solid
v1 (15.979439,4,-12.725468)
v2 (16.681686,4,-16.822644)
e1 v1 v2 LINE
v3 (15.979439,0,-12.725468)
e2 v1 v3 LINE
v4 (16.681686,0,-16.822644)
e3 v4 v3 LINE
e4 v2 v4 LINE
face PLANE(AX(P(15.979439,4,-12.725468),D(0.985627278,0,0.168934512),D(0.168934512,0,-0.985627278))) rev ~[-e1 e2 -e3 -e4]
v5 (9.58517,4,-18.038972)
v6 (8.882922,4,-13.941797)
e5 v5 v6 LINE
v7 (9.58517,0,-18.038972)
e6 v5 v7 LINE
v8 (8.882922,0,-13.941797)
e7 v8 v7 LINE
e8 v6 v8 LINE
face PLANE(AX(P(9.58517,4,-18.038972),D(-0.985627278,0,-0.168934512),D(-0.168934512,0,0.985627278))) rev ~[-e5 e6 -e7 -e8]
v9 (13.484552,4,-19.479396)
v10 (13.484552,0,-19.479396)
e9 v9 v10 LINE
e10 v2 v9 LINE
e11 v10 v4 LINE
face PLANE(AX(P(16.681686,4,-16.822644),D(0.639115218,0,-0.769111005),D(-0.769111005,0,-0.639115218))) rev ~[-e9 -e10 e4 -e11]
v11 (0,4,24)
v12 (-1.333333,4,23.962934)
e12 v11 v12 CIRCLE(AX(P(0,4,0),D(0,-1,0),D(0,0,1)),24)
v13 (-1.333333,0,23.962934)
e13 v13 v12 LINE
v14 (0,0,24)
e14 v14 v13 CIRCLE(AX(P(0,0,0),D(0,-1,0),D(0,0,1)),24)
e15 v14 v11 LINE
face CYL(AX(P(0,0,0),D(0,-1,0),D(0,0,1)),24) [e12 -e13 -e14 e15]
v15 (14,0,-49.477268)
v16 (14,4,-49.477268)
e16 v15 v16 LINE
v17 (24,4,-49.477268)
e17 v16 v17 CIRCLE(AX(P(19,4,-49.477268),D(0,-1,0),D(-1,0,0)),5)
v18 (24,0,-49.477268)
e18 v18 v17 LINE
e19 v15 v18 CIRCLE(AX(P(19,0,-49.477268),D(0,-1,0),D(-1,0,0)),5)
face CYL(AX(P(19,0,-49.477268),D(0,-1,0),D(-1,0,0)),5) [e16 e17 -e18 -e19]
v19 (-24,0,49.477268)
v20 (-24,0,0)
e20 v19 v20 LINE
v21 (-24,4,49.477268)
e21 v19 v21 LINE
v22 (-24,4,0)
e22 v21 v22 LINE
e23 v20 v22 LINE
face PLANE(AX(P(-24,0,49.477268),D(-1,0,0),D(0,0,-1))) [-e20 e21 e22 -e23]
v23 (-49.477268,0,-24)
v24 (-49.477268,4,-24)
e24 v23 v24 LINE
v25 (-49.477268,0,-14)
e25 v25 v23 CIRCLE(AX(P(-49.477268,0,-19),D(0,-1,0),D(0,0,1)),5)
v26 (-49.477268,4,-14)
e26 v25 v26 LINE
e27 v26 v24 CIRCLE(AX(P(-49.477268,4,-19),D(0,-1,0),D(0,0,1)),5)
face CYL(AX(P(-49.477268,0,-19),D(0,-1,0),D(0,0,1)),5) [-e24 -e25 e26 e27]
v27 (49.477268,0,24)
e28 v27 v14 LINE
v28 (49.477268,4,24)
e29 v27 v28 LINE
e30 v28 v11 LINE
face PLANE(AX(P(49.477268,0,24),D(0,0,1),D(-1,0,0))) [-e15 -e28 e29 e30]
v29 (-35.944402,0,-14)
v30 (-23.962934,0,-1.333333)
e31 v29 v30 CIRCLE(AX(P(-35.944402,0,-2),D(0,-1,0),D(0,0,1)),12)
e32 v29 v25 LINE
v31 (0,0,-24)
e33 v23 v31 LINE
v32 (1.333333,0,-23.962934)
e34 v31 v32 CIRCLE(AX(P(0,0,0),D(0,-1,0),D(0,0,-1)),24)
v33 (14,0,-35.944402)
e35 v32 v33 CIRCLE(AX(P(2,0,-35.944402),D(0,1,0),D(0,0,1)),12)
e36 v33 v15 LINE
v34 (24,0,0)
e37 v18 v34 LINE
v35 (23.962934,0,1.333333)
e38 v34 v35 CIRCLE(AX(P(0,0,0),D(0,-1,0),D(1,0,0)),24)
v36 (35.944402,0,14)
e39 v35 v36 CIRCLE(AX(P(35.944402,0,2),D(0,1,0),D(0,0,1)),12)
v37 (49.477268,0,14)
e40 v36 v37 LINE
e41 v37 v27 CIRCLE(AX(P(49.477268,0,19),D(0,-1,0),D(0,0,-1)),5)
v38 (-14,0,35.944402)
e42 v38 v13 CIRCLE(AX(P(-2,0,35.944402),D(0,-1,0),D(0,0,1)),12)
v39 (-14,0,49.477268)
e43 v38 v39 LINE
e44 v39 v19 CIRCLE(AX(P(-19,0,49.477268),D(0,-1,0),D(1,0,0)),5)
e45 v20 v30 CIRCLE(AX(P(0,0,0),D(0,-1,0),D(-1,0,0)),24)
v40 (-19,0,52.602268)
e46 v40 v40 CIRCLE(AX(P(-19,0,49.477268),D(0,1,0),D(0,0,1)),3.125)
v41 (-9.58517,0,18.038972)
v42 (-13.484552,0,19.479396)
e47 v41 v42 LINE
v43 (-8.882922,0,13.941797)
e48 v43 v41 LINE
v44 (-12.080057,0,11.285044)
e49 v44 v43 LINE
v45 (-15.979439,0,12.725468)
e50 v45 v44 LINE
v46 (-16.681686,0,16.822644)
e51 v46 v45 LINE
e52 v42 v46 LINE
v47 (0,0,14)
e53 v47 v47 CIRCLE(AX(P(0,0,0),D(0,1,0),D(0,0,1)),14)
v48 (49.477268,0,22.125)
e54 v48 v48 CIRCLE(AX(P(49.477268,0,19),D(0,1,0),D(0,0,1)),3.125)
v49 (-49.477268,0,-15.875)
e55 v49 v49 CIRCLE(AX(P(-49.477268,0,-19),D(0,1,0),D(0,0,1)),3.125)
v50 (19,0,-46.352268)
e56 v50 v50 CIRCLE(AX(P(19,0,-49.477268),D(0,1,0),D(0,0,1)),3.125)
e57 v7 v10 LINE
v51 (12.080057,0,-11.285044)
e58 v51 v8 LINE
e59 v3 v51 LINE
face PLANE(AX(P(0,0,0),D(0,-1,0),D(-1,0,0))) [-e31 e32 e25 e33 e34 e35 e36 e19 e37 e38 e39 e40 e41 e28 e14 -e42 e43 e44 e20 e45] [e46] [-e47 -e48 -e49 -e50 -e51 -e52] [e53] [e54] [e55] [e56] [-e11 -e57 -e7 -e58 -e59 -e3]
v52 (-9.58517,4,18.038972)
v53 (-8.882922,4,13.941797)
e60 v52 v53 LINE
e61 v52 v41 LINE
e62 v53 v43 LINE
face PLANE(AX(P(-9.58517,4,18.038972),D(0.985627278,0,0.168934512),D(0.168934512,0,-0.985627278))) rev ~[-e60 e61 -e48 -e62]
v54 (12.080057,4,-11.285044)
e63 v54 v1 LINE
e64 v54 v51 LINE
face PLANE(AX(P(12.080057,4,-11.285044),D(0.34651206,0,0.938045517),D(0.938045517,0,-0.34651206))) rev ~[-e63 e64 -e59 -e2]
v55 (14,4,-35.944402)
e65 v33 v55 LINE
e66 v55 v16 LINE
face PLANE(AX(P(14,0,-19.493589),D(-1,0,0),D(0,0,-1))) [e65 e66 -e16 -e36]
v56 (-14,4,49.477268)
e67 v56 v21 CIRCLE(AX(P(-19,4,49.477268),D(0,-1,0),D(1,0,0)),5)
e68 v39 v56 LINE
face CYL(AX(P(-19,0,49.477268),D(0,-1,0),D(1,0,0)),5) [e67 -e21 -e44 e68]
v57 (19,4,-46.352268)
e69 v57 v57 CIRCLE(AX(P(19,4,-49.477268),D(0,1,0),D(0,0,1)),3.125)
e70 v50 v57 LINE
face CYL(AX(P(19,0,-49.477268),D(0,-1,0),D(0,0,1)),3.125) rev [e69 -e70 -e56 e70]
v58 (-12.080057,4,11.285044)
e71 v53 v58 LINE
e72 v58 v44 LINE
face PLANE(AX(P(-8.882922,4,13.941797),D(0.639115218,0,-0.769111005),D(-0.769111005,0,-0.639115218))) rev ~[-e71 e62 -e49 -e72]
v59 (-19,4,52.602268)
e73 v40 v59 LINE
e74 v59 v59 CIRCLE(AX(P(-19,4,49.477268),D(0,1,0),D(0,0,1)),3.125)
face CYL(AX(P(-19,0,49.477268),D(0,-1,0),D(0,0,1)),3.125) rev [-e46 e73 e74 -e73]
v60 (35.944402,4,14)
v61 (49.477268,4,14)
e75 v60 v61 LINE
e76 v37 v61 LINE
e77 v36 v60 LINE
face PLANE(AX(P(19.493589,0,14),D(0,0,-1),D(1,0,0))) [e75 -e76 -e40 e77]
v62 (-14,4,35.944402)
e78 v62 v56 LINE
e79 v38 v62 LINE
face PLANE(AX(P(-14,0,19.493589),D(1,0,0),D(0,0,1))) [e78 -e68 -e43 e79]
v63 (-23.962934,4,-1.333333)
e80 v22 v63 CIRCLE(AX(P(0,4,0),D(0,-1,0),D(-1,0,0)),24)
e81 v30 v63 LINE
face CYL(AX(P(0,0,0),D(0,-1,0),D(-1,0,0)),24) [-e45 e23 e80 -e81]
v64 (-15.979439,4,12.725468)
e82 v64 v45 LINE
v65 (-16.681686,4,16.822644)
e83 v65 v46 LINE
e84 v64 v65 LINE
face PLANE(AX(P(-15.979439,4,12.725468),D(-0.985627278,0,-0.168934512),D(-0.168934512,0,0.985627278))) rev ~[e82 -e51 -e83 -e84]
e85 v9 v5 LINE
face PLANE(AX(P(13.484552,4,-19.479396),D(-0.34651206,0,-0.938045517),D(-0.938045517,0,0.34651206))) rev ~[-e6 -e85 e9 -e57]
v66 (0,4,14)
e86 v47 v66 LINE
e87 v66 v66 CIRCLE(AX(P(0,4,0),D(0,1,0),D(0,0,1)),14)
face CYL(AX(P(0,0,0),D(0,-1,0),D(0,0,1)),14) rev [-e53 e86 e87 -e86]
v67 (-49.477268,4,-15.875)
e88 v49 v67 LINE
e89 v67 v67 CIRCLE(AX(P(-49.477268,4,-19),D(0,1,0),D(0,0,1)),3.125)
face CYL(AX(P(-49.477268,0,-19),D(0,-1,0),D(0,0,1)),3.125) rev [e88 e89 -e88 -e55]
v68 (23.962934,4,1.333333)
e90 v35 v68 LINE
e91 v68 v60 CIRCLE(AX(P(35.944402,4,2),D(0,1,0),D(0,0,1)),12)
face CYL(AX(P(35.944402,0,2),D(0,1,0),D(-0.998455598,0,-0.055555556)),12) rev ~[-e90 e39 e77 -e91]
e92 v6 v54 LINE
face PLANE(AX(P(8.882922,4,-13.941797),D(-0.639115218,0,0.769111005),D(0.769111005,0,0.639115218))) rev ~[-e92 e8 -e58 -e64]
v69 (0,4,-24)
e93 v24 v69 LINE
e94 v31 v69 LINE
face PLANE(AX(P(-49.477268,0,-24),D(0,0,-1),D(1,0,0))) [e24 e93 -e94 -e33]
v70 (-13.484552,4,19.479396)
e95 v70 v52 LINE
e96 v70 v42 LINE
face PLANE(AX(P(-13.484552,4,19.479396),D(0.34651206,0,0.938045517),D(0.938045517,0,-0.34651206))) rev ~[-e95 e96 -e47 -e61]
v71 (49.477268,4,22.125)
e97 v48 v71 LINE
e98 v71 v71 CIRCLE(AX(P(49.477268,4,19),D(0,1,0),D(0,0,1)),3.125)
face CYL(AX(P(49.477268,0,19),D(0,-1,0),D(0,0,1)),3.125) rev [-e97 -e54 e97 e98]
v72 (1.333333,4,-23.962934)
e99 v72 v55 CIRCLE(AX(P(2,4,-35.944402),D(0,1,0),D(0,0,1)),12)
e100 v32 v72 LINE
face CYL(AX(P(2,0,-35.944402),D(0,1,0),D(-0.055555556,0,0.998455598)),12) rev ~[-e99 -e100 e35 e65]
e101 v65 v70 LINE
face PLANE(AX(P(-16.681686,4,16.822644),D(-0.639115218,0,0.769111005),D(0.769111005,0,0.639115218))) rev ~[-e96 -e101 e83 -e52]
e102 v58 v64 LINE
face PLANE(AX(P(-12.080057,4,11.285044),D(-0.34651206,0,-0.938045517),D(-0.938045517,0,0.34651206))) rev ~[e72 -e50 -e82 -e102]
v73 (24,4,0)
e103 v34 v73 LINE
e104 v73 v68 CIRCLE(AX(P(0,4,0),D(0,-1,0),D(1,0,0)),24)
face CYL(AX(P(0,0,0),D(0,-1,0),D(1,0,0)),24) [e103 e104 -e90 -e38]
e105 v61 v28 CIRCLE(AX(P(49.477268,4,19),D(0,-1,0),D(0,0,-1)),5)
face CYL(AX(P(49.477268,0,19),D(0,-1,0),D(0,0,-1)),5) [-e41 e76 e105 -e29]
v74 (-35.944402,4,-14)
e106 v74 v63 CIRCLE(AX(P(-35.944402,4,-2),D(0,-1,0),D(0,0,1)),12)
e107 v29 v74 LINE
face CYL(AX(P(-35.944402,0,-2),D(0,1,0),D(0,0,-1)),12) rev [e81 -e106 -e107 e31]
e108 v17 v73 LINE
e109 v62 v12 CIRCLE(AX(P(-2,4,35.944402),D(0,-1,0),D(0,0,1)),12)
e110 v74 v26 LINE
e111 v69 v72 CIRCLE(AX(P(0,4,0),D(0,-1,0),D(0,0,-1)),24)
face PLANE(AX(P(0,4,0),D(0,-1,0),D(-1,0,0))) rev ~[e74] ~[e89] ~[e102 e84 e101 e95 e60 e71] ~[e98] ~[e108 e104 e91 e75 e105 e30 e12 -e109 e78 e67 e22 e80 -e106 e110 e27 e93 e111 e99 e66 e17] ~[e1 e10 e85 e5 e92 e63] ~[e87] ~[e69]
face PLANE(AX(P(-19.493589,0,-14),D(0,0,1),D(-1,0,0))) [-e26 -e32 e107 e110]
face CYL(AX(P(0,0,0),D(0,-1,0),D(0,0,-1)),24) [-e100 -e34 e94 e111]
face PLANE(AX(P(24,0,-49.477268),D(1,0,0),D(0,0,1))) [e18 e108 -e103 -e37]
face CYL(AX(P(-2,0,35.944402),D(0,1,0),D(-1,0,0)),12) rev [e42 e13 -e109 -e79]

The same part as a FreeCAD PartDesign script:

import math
import FreeCAD as App
import Part
import Sketcher


def edges_at(feature, points):
    """Names of the edges that pass closest to the given points."""
    edges = feature.Shape.Edges
    near = lambda p: min(range(len(edges)), key=lambda i: edges[i].distToShape(Part.Vertex(*p))[0])
    return sorted({f"Edge{near(p) + 1}" for p in points})


def add_polygon(sketch, points):
    """Adds a closed chain of lines whose ends are joined by coincident constraints."""
    first, n = sketch.GeometryCount, len(points)
    for a, b in zip(points, points[1:] + points[:1]):
        sketch.addGeometry(Part.LineSegment(App.Vector(*a, 0), App.Vector(*b, 0)), False)
    for i in range(n):
        sketch.addConstraint(Sketcher.Constraint("Coincident", first + i, 2, first + (i + 1) % n, 1))

doc = App.newDocument("Part")
body = doc.addObject("PartDesign::Body", "Body")

# Sketch on XZ plane
sketch1 = body.newObject("Sketcher::SketchObject", "Sketch")
sketch1.AttachmentSupport = (doc.getObject("XZ_Plane"), [""])
sketch1.MapMode = "FlatFace"
sketch1.addGeometry([
    Part.LineSegment(App.Vector(0, -24, 0), App.Vector(-49.477268, -24, 0)),  # 0
    Part.ArcOfCircle(Part.Circle(App.Vector(-49.477268, -19, 0), App.Vector(0, 0, 1), 5), math.radians(90), math.radians(270)),  # 1
    Part.LineSegment(App.Vector(-49.477268, -14, 0), App.Vector(-19.493589, -14, 0)),  # 2
    Part.ArcOfCircle(Part.Circle(App.Vector(0, 0, 0), App.Vector(0, 0, 1), 24), math.radians(180), math.radians(215.685335)),  # 3
    Part.LineSegment(App.Vector(-24, 0, 0), App.Vector(-24, 49.477268, 0)),  # 4
    Part.ArcOfCircle(Part.Circle(App.Vector(-19, 49.477268, 0), App.Vector(0, 0, 1), 5), math.radians(0), math.radians(180)),  # 5
    Part.LineSegment(App.Vector(-14, 49.477268, 0), App.Vector(-14, 19.493589, 0)),  # 6
    Part.ArcOfCircle(Part.Circle(App.Vector(0, 0, 0), App.Vector(0, 0, 1), 24), math.radians(90), math.radians(125.685335)),  # 7
    Part.LineSegment(App.Vector(0, 24, 0), App.Vector(49.477268, 24, 0)),  # 8
    Part.ArcOfCircle(Part.Circle(App.Vector(49.477268, 19, 0), App.Vector(0, 0, 1), 5), math.radians(-90), math.radians(90)),  # 9
    Part.LineSegment(App.Vector(49.477268, 14, 0), App.Vector(19.493589, 14, 0)),  # 10
    Part.ArcOfCircle(Part.Circle(App.Vector(0, 0, 0), App.Vector(0, 0, 1), 24), math.radians(0), math.radians(35.685335)),  # 11
    Part.LineSegment(App.Vector(24, 0, 0), App.Vector(24, -49.477268, 0)),  # 12
    Part.ArcOfCircle(Part.Circle(App.Vector(19, -49.477268, 0), App.Vector(0, 0, 1), 5), math.radians(180), math.radians(360)),  # 13
    Part.LineSegment(App.Vector(14, -49.477268, 0), App.Vector(14, -19.493589, 0)),  # 14
    Part.ArcOfCircle(Part.Circle(App.Vector(0, 0, 0), App.Vector(0, 0, 1), 24), math.radians(-90), math.radians(-54.314665)),  # 15
    Part.Circle(App.Vector(49.477268, 19, 0), App.Vector(0, 0, 1), 3.125),  # 16
    Part.Circle(App.Vector(0, 0, 0), App.Vector(0, 0, 1), 14),  # 17
    Part.Circle(App.Vector(-19, 49.477268, 0), App.Vector(0, 0, 1), 3.125),  # 18
    Part.Circle(App.Vector(19, -49.477268, 0), App.Vector(0, 0, 1), 3.125),  # 19
    Part.Circle(App.Vector(-49.477268, -19, 0), App.Vector(0, 0, 1), 3.125),  # 20
], False)
sketch1.addConstraint([
    Sketcher.Constraint("Tangent", 0, 2, 1, 2),
    Sketcher.Constraint("Tangent", 1, 1, 2, 1),
    Sketcher.Constraint("Coincident", 2, 2, 3, 2),
    Sketcher.Constraint("Tangent", 3, 1, 4, 1),
    Sketcher.Constraint("Tangent", 4, 2, 5, 2),
    Sketcher.Constraint("Tangent", 5, 1, 6, 1),
    Sketcher.Constraint("Coincident", 6, 2, 7, 2),
    Sketcher.Constraint("Tangent", 7, 1, 8, 1),
    Sketcher.Constraint("Tangent", 8, 2, 9, 2),
    Sketcher.Constraint("Tangent", 9, 1, 10, 1),
    Sketcher.Constraint("Coincident", 10, 2, 11, 2),
    Sketcher.Constraint("Tangent", 11, 1, 12, 1),
    Sketcher.Constraint("Tangent", 12, 2, 13, 2),
    Sketcher.Constraint("Tangent", 13, 1, 14, 1),
    Sketcher.Constraint("Coincident", 14, 2, 15, 2),
    Sketcher.Constraint("Tangent", 15, 1, 0, 1),
    Sketcher.Constraint("Horizontal", 0),
    Sketcher.Constraint("Horizontal", 2),
    Sketcher.Constraint("Vertical", 4),
    Sketcher.Constraint("Vertical", 6),
    Sketcher.Constraint("Horizontal", 8),
    Sketcher.Constraint("Horizontal", 10),
    Sketcher.Constraint("Vertical", 12),
    Sketcher.Constraint("Vertical", 14),
    Sketcher.Constraint("Coincident", 3, 3, -1, 1),
    Sketcher.Constraint("Coincident", 7, 3, -1, 1),
    Sketcher.Constraint("Coincident", 11, 3, -1, 1),
    Sketcher.Constraint("Coincident", 15, 3, -1, 1),
    Sketcher.Constraint("Coincident", 17, 3, -1, 1),
    Sketcher.Constraint("Coincident", 16, 3, 9, 3),
    Sketcher.Constraint("Coincident", 18, 3, 5, 3),
    Sketcher.Constraint("Coincident", 19, 3, 13, 3),
    Sketcher.Constraint("Coincident", 20, 3, 1, 3),
    Sketcher.Constraint("Equal", 1, 5),
    Sketcher.Constraint("Equal", 3, 7),
    Sketcher.Constraint("Equal", 5, 9),
    Sketcher.Constraint("Equal", 7, 11),
    Sketcher.Constraint("Equal", 9, 13),
    Sketcher.Constraint("Equal", 11, 15),
    Sketcher.Constraint("Equal", 16, 18),
    Sketcher.Constraint("Equal", 18, 19),
    Sketcher.Constraint("Equal", 19, 20),
    Sketcher.Constraint("Equal", 0, 8),
    Sketcher.Constraint("Equal", 8, 4),
    Sketcher.Constraint("Equal", 4, 12),
    Sketcher.Constraint("Diameter", 17, 28.0),
    Sketcher.Constraint("Radius", 1, 5.0),
    Sketcher.Constraint("Radius", 3, 24.0),
    Sketcher.Constraint("Diameter", 16, 6.25),
    Sketcher.Constraint("DistanceX", 2, 1, 2, 2, 29.983679),
])
pad1 = body.newObject("PartDesign::Pad", "Pad")
pad1.Profile = sketch1
pad1.Length = 4
pad1.Reversed = True
doc.recompute()

fillet = body.newObject("PartDesign::Fillet", "Fillet")
fillet.Base = (pad1, edges_at(pad1, [
    (-19.494, 2, -14),
    (14, 2, -19.494),
    (19.494, 2, 14),
    (-14, 2, 19.494),
]))
fillet.Radius = 12

# Sketch on XZ plane
sketch2 = body.newObject("Sketcher::SketchObject", "Sketch001")
sketch2.AttachmentSupport = (doc.getObject("XZ_Plane"), [""])
sketch2.MapMode = "FlatFace"
sketch2.AttachmentOffset = App.Placement(App.Vector(0, 0, -4), App.Rotation())
add_polygon(sketch2, [(9.58517, -18.038972), (8.882922, -13.941797), (12.080057, -11.285044), (15.979439, -12.725468), (16.681686, -16.822644), (13.484552, -19.479396)])  # lines 0-5
add_polygon(sketch2, [(-15.979439, 12.725468), (-16.681686, 16.822644), (-13.484552, 19.479396), (-9.58517, 18.038972), (-8.882922, 13.941797), (-12.080057, 11.285044)])  # lines 6-11
sketch2.addConstraint([
    Sketcher.Constraint("Symmetric", 3, 2, 6, 2, -1, 1),
    Sketcher.Constraint("Symmetric", 4, 2, 7, 2, -1, 1),
    Sketcher.Constraint("Symmetric", 5, 2, 8, 2, -1, 1),
    Sketcher.Constraint("Symmetric", 0, 2, 9, 2, -1, 1),
    Sketcher.Constraint("Symmetric", 1, 2, 10, 2, -1, 1),
    Sketcher.Constraint("Symmetric", 2, 2, 11, 2, -1, 1),
    Sketcher.Constraint("Parallel", 0, 3),
    Sketcher.Constraint("Parallel", 1, 4),
    Sketcher.Constraint("Parallel", 2, 5),
    Sketcher.Constraint("Equal", 0, 1),
    Sketcher.Constraint("Equal", 1, 2),
    Sketcher.Constraint("Equal", 2, 3),
    Sketcher.Constraint("DistanceY", 3, 2, 1, 2, 5.537599),
    Sketcher.Constraint("Distance", 0, 4.156922),
    Sketcher.Constraint("DistanceX", -1, 1, 2, 2, 15.979439),
    Sketcher.Constraint("DistanceY", 2, 2, -1, 1, 12.725468),
    Sketcher.Constraint("DistanceX", -1, 1, 4, 2, 13.484552),
    Sketcher.Constraint("DistanceX", -1, 1, 5, 2, 9.58517),
])
pocket1 = body.newObject("PartDesign::Pocket", "Pocket")
pocket1.Profile = sketch2
pocket1.Length = 10
pocket1.Reversed = True

doc.recompute()
